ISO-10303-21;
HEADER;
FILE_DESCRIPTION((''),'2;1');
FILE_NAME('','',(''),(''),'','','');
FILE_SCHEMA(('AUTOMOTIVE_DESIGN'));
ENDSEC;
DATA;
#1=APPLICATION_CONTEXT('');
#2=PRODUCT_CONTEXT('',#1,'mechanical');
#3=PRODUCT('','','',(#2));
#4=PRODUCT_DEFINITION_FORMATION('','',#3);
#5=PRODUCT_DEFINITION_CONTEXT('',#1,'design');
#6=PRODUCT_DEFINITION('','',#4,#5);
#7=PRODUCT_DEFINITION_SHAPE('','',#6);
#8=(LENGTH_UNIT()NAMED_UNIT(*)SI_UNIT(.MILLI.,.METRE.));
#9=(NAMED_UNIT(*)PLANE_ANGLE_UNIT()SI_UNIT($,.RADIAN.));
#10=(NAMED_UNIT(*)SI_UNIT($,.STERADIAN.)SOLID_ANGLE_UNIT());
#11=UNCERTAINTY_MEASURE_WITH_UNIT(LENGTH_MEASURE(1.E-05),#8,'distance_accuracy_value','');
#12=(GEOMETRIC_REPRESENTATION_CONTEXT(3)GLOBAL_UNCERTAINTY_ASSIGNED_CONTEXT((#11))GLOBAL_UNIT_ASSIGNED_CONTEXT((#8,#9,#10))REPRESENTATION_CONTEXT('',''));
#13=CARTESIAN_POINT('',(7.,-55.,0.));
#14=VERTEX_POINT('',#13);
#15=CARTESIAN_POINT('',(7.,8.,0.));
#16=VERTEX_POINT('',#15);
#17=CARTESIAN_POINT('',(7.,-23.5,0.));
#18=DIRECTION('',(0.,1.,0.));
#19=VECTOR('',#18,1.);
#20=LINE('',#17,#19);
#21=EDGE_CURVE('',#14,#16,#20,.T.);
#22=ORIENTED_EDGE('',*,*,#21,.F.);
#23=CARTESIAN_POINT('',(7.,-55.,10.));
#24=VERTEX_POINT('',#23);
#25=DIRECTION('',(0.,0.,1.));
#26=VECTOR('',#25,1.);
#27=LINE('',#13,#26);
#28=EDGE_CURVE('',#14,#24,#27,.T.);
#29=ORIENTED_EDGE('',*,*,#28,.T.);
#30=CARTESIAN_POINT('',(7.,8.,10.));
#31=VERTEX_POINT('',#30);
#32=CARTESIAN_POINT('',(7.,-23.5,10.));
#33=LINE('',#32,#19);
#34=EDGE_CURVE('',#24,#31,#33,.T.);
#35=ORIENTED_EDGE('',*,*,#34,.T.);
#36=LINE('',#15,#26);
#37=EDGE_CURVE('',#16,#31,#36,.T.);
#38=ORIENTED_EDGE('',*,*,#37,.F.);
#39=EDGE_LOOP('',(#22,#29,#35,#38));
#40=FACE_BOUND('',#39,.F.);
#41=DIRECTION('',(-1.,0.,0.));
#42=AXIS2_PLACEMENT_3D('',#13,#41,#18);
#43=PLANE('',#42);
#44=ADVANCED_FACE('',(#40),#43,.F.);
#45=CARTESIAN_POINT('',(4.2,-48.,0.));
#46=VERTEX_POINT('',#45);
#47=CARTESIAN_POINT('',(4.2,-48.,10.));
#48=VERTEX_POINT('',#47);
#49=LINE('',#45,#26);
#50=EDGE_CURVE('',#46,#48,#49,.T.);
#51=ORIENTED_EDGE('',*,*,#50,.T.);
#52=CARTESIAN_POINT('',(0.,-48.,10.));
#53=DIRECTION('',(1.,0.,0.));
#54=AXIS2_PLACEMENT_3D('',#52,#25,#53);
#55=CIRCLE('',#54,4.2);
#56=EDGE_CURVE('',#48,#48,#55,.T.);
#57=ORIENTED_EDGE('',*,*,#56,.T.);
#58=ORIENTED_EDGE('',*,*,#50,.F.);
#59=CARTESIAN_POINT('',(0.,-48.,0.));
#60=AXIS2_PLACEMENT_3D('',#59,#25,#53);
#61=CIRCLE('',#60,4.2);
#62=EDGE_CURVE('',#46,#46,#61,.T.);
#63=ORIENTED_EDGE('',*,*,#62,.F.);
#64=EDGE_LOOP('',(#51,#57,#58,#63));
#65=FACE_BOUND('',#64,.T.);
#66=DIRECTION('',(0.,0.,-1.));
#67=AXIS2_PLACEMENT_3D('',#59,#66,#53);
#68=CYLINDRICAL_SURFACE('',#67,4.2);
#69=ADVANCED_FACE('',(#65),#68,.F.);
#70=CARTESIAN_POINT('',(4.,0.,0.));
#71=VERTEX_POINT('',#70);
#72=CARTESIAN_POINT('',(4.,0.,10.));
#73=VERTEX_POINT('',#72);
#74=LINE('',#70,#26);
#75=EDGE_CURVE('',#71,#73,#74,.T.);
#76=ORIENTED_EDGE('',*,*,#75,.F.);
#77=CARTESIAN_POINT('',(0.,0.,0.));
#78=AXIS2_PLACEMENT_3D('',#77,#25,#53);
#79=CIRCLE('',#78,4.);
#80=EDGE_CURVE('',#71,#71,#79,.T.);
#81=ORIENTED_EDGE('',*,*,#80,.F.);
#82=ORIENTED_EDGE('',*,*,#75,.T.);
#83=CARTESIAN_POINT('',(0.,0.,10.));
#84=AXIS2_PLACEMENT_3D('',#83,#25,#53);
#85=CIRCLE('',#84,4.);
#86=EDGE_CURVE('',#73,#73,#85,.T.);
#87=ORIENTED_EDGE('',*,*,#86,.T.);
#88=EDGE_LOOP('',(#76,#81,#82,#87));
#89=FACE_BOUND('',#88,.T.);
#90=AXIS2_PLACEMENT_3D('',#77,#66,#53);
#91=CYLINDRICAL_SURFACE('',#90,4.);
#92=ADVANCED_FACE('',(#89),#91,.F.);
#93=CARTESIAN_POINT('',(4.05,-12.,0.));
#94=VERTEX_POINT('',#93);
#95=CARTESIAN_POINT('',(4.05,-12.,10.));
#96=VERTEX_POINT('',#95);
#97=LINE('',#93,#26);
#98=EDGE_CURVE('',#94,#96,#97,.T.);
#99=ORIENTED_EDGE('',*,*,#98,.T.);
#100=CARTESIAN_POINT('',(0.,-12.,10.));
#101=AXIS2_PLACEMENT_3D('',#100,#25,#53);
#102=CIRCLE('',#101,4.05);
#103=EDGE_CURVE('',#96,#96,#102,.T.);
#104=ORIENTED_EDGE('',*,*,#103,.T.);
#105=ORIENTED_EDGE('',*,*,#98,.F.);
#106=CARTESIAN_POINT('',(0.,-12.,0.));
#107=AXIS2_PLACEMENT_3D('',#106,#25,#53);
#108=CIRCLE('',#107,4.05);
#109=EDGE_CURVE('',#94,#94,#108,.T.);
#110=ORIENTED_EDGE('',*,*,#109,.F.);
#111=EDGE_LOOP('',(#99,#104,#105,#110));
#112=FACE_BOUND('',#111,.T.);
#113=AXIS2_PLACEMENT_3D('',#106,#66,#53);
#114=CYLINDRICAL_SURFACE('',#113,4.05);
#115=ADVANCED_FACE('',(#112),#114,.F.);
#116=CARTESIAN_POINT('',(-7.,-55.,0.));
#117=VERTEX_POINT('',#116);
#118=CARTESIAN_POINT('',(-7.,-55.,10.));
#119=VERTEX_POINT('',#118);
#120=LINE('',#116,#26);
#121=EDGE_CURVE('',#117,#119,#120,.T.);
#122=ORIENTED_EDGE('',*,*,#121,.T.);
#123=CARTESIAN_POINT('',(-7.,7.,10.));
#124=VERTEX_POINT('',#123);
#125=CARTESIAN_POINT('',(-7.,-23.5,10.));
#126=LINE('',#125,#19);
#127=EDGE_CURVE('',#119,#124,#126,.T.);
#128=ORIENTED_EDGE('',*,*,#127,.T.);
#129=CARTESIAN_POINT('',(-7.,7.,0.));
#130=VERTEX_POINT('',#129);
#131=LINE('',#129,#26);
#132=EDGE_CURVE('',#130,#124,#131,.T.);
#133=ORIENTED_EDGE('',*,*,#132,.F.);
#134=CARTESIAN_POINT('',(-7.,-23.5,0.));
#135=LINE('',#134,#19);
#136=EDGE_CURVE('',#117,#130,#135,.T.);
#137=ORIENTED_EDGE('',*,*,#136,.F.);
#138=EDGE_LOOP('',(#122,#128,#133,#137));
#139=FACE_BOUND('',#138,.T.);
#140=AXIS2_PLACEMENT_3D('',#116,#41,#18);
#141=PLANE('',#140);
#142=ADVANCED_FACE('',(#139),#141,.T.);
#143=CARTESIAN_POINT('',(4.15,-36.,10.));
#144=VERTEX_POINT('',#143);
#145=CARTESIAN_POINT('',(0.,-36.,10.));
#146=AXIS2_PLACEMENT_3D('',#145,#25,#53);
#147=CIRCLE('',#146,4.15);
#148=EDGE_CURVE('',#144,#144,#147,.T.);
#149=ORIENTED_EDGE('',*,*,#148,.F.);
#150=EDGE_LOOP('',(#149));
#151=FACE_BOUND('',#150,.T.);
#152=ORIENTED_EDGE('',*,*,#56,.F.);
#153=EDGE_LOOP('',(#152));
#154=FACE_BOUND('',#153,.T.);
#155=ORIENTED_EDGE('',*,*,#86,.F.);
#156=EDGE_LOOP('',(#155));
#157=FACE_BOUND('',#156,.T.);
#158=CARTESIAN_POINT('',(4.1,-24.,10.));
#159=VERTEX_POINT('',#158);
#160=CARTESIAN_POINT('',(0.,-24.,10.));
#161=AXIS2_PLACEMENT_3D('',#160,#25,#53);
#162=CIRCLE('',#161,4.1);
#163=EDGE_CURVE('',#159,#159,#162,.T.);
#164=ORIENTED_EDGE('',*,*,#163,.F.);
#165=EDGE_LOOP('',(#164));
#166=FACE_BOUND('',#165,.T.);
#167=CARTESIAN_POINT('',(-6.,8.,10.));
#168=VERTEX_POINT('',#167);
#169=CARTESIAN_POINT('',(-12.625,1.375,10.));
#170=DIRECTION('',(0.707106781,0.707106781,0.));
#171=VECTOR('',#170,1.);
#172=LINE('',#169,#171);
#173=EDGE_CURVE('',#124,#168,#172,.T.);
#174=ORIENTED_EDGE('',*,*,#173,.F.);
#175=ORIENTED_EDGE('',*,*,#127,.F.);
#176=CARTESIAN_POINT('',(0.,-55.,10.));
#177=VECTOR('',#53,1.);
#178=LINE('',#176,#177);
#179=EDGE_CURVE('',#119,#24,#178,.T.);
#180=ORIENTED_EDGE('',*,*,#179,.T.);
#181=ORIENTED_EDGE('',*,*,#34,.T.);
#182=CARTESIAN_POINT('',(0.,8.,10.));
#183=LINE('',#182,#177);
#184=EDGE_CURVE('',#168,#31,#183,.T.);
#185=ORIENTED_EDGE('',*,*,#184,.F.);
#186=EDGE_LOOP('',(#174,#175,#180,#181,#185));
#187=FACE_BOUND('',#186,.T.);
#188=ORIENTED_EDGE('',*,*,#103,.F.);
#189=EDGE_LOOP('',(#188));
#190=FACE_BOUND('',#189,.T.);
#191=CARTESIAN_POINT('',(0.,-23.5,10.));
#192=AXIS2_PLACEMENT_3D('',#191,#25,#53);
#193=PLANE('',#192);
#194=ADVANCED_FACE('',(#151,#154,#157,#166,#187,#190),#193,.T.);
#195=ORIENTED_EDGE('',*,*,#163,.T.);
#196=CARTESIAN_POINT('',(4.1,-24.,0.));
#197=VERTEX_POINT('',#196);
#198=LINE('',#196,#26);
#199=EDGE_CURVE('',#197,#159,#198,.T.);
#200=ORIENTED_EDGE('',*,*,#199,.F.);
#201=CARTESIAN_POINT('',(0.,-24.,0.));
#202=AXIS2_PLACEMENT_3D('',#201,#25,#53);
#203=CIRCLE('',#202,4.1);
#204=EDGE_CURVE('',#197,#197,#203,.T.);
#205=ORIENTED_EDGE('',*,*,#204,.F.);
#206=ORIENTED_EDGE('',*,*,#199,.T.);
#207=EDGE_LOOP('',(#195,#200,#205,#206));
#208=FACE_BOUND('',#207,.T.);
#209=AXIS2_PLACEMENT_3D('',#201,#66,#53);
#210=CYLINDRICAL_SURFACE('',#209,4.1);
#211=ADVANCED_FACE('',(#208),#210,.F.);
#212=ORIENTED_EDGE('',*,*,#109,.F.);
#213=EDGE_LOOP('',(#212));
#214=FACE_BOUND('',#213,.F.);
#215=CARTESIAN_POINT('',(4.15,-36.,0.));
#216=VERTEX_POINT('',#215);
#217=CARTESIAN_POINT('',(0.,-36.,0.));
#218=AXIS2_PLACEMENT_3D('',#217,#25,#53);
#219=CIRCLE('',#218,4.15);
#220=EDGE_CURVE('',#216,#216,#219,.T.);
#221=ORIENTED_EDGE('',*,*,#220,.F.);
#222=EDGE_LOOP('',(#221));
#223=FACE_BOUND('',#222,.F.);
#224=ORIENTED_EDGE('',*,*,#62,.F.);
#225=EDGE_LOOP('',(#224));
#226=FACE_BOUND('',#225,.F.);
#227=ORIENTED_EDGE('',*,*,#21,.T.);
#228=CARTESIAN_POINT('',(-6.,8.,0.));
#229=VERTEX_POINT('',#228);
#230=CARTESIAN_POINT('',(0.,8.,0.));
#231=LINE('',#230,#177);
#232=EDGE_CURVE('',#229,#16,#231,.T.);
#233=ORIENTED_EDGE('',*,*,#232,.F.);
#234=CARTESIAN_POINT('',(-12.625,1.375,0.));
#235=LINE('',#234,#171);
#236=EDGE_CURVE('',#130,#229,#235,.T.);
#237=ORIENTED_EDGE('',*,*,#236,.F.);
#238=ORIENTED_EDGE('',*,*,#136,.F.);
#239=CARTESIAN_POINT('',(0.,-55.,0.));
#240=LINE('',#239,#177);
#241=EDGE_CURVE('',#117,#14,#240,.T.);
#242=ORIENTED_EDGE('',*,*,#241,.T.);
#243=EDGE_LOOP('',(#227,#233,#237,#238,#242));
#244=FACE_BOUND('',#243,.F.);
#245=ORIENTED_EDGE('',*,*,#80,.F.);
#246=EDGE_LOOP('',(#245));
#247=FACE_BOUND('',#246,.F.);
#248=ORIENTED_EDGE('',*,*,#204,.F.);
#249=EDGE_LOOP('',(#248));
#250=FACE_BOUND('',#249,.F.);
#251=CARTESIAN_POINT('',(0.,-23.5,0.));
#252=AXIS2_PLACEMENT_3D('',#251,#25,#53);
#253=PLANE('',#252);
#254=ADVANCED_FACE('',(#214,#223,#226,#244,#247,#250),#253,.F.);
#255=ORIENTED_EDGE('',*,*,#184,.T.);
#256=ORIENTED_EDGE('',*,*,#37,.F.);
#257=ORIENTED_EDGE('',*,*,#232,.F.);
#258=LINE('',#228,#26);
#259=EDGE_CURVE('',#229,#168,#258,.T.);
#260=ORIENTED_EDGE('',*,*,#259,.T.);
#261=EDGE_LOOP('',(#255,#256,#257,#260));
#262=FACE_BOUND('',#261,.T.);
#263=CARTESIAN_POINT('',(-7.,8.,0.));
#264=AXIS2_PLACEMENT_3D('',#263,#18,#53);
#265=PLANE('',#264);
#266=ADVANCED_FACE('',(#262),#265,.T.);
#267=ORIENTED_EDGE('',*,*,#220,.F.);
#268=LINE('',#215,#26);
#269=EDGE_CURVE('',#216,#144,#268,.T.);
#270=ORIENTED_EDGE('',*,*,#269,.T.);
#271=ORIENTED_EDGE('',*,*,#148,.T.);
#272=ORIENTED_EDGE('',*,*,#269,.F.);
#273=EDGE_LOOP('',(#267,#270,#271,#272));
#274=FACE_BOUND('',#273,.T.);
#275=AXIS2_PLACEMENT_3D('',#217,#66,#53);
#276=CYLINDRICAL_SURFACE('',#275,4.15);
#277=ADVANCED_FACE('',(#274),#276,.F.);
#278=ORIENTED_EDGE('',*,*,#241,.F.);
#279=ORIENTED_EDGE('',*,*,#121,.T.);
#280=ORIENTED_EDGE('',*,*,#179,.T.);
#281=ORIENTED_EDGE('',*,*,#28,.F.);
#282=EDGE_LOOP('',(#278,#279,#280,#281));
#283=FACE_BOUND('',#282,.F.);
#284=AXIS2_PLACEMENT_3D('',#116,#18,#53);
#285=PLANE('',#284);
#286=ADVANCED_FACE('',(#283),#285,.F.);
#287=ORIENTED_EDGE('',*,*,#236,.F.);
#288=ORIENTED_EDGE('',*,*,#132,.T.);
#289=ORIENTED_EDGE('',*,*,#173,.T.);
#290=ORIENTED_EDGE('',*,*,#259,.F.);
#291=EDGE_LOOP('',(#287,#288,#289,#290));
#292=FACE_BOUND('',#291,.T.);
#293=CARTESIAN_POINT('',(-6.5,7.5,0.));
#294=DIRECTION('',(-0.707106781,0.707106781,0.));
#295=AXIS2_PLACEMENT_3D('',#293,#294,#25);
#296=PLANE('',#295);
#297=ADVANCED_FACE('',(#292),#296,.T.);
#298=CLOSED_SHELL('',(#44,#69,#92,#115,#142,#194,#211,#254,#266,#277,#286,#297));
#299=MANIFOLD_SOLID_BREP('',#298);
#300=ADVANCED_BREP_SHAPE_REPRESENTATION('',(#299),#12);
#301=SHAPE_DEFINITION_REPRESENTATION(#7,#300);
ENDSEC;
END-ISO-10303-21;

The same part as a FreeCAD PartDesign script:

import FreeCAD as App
import Part
import Sketcher


def edges_at(feature, points):
    """Names of the edges that pass closest to the given points."""
    edges = feature.Shape.Edges
    near = lambda p: min(range(len(edges)), key=lambda i: edges[i].distToShape(Part.Vertex(*p))[0])
    return sorted({f"Edge{near(p) + 1}" for p in points})


def add_polygon(sketch, points):
    """Adds a closed chain of lines whose ends are joined by coincident constraints."""
    first, n = sketch.GeometryCount, len(points)
    for a, b in zip(points, points[1:] + points[:1]):
        sketch.addGeometry(Part.LineSegment(App.Vector(*a, 0), App.Vector(*b, 0)), False)
    for i in range(n):
        sketch.addConstraint(Sketcher.Constraint("Coincident", first + i, 2, first + (i + 1) % n, 1))

doc = App.newDocument("Part")
body = doc.addObject("PartDesign::Body", "Body")

sketch1 = body.newObject("Sketcher::SketchObject", "Sketch")
sketch1.AttachmentSupport = (doc.getObject("XY_Plane"), [""])
sketch1.MapMode = "FlatFace"
sketch1.addGeometry(Part.Circle(App.Vector(0, 0, 0), App.Vector(0, 0, 1), 4), False)
sketch1.addConstraint(Sketcher.Constraint("Coincident", 0, 3, -1, 1))
sketch1.addConstraint(Sketcher.Constraint("Diameter", 0, 8.0))
pad1 = body.newObject("PartDesign::Pad", "Pad")
pad1.Profile = sketch1
pad1.Length = 10
body2 = doc.addObject("PartDesign::Body", "Body001")

sketch2 = body2.newObject("Sketcher::SketchObject", "Sketch001")
sketch2.AttachmentSupport = (doc.getObject("XY_Plane001"), [""])
sketch2.MapMode = "FlatFace"
sketch2.addGeometry(Part.Circle(App.Vector(0, -36, 0), App.Vector(0, 0, 1), 4.15), False)
sketch2.addConstraint(Sketcher.Constraint("PointOnObject", 0, 3, -2))
sketch2.addConstraint(Sketcher.Constraint("Diameter", 0, 8.3))
sketch2.addConstraint(Sketcher.Constraint("DistanceY", 0, 3, -1, 1, 36.0))
pad2 = body2.newObject("PartDesign::Pad", "Pad001")
pad2.Profile = sketch2
pad2.Length = 10
body3 = doc.addObject("PartDesign::Body", "Body002")

sketch3 = body3.newObject("Sketcher::SketchObject", "Sketch002")
sketch3.AttachmentSupport = (doc.getObject("XY_Plane002"), [""])
sketch3.MapMode = "FlatFace"
sketch3.addGeometry(Part.Circle(App.Vector(0, -12, 0), App.Vector(0, 0, 1), 4.05), False)
sketch3.addConstraint(Sketcher.Constraint("PointOnObject", 0, 3, -2))
sketch3.addConstraint(Sketcher.Constraint("Diameter", 0, 8.1))
sketch3.addConstraint(Sketcher.Constraint("DistanceY", 0, 3, -1, 1, 12.0))
pad3 = body3.newObject("PartDesign::Pad", "Pad002")
pad3.Profile = sketch3
pad3.Length = 10
body4 = doc.addObject("PartDesign::Body", "Body003")

sketch4 = body4.newObject("Sketcher::SketchObject", "Sketch003")
sketch4.AttachmentSupport = (doc.getObject("XY_Plane003"), [""])
sketch4.MapMode = "FlatFace"
sketch4.addGeometry(Part.Circle(App.Vector(0, -24, 0), App.Vector(0, 0, 1), 4.1), False)
sketch4.addConstraint(Sketcher.Constraint("PointOnObject", 0, 3, -2))
sketch4.addConstraint(Sketcher.Constraint("Diameter", 0, 8.2))
sketch4.addConstraint(Sketcher.Constraint("DistanceY", 0, 3, -1, 1, 24.0))
pad4 = body4.newObject("PartDesign::Pad", "Pad003")
pad4.Profile = sketch4
pad4.Length = 10
body5 = doc.addObject("PartDesign::Body", "Body004")
body5.AllowCompound = True

sketch5 = body5.newObject("Sketcher::SketchObject", "Sketch004")
sketch5.AttachmentSupport = (doc.getObject("XY_Plane004"), [""])
sketch5.MapMode = "FlatFace"
sketch5.addGeometry(Part.Circle(App.Vector(0, -48, 0), App.Vector(0, 0, 1), 4.2), False)
sketch5.addConstraint(Sketcher.Constraint("PointOnObject", 0, 3, -2))
sketch5.addConstraint(Sketcher.Constraint("Diameter", 0, 8.4))
sketch5.addConstraint(Sketcher.Constraint("DistanceY", 0, 3, -1, 1, 48.0))
pad5 = body5.newObject("PartDesign::Pad", "Pad004")
pad5.Profile = sketch5
pad5.Length = 10
doc.recompute()

boolean = body5.newObject("PartDesign::Boolean", "Boolean")
boolean.Type = "Fuse"
boolean.addObjects([body])
doc.recompute()

boolean2 = body5.newObject("PartDesign::Boolean", "Boolean001")
boolean2.Type = "Fuse"
boolean2.addObjects([body2])
doc.recompute()

boolean3 = body5.newObject("PartDesign::Boolean", "Boolean002")
boolean3.Type = "Fuse"
boolean3.addObjects([body3])
doc.recompute()

boolean4 = body5.newObject("PartDesign::Boolean", "Boolean003")
boolean4.Type = "Fuse"
boolean4.addObjects([body4])
body6 = doc.addObject("PartDesign::Body", "Body005")

sketch6 = body6.newObject("Sketcher::SketchObject", "Sketch005")
sketch6.AttachmentSupport = (doc.getObject("XY_Plane005"), [""])
sketch6.MapMode = "FlatFace"
add_polygon(sketch6, [(-7, 8), (-7, -55), (7, -55), (7, 8)])
sketch6.addConstraint(Sketcher.Constraint("Vertical", 0))
sketch6.addConstraint(Sketcher.Constraint("Horizontal", 1))
sketch6.addConstraint(Sketcher.Constraint("Vertical", 2))
sketch6.addConstraint(Sketcher.Constraint("Horizontal", 3))
sketch6.addConstraint(Sketcher.Constraint("DistanceX", 1, 1, 1, 2, 14.0))
sketch6.addConstraint(Sketcher.Constraint("DistanceY", 0, 2, 0, 1, 63.0))
sketch6.addConstraint(Sketcher.Constraint("DistanceX", 0, 2, -1, 1, 7.0))
sketch6.addConstraint(Sketcher.Constraint("DistanceY", 0, 2, -1, 1, 55.0))
pad6 = body6.newObject("PartDesign::Pad", "Pad005")
pad6.Profile = sketch6
pad6.Length = 10
doc.recompute()

chamfer = body6.newObject("PartDesign::Chamfer", "Chamfer")
chamfer.Base = (pad6, edges_at(pad6, [(-7, 8, 5)]))
chamfer.Size = 1
doc.recompute()

boolean5 = body6.newObject("PartDesign::Boolean", "Boolean004")
boolean5.Type = "Cut"
boolean5.addObjects([body5])

doc.recompute()
